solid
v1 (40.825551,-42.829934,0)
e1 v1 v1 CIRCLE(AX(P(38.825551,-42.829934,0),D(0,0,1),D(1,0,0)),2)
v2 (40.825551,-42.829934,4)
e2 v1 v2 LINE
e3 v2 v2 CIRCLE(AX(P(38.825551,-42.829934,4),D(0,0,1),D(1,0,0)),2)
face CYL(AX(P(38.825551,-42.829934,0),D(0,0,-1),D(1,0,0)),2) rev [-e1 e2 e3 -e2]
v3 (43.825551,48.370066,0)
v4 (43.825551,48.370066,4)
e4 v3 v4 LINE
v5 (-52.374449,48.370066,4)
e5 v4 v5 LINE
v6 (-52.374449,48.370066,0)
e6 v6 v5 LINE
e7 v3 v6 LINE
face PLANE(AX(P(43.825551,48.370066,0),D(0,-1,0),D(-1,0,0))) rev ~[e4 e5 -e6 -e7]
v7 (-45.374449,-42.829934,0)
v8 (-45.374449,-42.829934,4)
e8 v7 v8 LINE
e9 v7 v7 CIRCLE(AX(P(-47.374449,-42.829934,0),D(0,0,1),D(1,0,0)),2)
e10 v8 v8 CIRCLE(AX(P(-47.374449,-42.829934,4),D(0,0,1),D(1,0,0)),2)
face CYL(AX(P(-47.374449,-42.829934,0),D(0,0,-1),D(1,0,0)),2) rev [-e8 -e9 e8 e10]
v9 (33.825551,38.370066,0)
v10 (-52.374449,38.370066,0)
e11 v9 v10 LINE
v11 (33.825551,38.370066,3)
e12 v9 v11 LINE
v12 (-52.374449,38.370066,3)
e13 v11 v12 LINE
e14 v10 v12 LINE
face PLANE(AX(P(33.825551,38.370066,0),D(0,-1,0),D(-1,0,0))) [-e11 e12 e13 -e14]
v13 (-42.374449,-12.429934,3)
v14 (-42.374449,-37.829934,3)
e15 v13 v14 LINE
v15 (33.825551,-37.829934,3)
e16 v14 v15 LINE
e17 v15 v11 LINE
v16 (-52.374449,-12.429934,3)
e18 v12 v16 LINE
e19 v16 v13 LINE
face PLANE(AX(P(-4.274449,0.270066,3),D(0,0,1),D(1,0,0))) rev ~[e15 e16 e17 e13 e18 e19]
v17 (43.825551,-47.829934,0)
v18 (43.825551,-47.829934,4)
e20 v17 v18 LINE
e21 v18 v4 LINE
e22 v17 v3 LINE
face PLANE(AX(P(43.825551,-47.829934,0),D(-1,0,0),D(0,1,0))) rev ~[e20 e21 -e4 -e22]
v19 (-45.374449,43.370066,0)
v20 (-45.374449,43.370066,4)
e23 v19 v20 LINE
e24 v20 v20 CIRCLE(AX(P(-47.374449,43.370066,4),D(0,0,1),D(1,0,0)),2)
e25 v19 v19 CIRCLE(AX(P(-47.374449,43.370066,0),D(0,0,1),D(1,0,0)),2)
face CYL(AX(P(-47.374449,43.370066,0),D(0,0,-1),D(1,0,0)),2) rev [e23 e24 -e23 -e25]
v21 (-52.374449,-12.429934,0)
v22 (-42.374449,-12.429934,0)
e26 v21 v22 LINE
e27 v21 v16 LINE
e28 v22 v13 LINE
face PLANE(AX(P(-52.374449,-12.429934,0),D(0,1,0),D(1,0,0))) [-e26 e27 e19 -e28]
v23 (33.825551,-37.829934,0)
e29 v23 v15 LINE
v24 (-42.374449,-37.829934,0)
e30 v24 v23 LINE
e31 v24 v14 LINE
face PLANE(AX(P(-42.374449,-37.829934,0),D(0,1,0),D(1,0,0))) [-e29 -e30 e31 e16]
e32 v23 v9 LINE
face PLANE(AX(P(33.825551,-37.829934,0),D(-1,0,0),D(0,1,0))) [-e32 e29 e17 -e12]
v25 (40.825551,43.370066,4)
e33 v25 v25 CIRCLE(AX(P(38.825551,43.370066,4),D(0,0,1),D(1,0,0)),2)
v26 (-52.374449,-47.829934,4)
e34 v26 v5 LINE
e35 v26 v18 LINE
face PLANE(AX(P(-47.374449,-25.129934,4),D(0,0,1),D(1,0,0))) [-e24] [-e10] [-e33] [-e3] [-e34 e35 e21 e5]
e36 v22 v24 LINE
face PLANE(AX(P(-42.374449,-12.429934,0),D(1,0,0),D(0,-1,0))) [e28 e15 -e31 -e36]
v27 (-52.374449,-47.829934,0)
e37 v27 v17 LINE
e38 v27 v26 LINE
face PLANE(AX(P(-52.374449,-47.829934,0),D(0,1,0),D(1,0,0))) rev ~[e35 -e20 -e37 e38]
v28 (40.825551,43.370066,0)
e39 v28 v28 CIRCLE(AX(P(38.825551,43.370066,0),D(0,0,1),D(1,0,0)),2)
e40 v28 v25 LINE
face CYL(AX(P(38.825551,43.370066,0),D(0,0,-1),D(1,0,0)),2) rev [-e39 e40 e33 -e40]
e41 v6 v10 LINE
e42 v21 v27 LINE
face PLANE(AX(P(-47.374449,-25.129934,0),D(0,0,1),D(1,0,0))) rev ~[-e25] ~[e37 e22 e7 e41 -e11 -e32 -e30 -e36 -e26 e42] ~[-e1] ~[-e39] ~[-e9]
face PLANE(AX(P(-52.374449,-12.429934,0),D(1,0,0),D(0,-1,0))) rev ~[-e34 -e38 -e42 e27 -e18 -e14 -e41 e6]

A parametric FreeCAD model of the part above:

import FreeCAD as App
import Part
import Sketcher
from FreeCAD import Vector
Q = App.Units.Quantity


def add_polygon(sketch, points):
    """Adds a closed chain of lines whose ends are joined by coincident constraints."""
    first, n = sketch.GeometryCount, len(points)
    for a, b in zip(points, points[1:] + points[:1]):
        sketch.addGeometry(Part.LineSegment(App.Vector(*a, 0), App.Vector(*b, 0)), False)
    for i in range(n):
        sketch.addConstraint(Sketcher.Constraint("Coincident", first + i, 2, first + (i + 1) % n, 1))

doc = App.newDocument("Part")
body = doc.addObject("PartDesign::Body", "Body")

# Sketch on XY plane
sketch1 = doc.addObject("Sketcher::SketchObject", "Sketch")
body.addObject(sketch1)
sketch1.AttachmentSupport = (doc.XY_Plane, [""])
sketch1.MapMode = "FlatFace"
add_polygon(sketch1, [(43.8, 48.4), (-52.4, 48.4), (-52.4, -12.4), (-42.4, -12.4), (-42.4, 38.4), (33.8, 38.4), (33.8, -37.8), (-52.4, -37.8), (-52.4, -47.8), (43.8, -47.8)])  # lines 0-9
sketch1.addGeometry(Part.Circle(Vector(-47.4, -42.8, 0), Vector(0, 0, 1), 2), False)  # 10
sketch1.addGeometry(Part.Circle(Vector(38.8, -42.8, 0), Vector(0, 0, 1), 2), False)  # 11
sketch1.addGeometry(Part.Circle(Vector(-47.4, 43.4, 0), Vector(0, 0, 1), 2), False)  # 12
sketch1.addGeometry(Part.Circle(Vector(38.8, 43.4, 0), Vector(0, 0, 1), 2), False)  # 13
sketch1.addConstraint([
    Sketcher.Constraint("Horizontal", 0),
    Sketcher.Constraint("Vertical", 1),
    Sketcher.Constraint("Horizontal", 2),
    Sketcher.Constraint("Vertical", 3),
    Sketcher.Constraint("Horizontal", 4),
    Sketcher.Constraint("Vertical", 5),
    Sketcher.Constraint("Horizontal", 6),
    Sketcher.Constraint("Vertical", 7),
    Sketcher.Constraint("Horizontal", 8),
    Sketcher.Constraint("Vertical", 9),
    Sketcher.Constraint("Equal", 10, 11),
    Sketcher.Constraint("Equal", 11, 12),
    Sketcher.Constraint("Equal", 12, 13),
    Sketcher.Constraint("Horizontal", 10, 3, 11, 3),
    Sketcher.Constraint("Horizontal", 12, 3, 13, 3),
    Sketcher.Constraint("Vertical", 10, 3, 12, 3),
    Sketcher.Constraint("Vertical", 11, 3, 13, 3),
    Sketcher.Constraint("Vertical", 1, 2, 6, 2),
    Sketcher.Constraint("Equal", 4, 5),
    Sketcher.Constraint("Equal", 2, 7),
    Sketcher.Constraint("Equal", 8, 9),
    Sketcher.Constraint("Diameter", 10, Q("4 mm")),
    Sketcher.Constraint("DistanceX", 2, 1, 2, 2, Q("10 mm")),
    Sketcher.Constraint("DistanceX", 0, 2, 0, 1, Q("96.2 mm")),
    Sketcher.Constraint("DistanceX", 4, 1, 4, 2, Q("76.2 mm")),
    Sketcher.Constraint("DistanceY", 1, 2, 1, 1, Q("60.8 mm")),
    Sketcher.Constraint("DistanceX", 0, 2, 12, 3, Q("5 mm")),
    Sketcher.Constraint("DistanceY", 12, 3, 0, 2, Q("5 mm")),
    Sketcher.Constraint("DistanceX", 4, 2, 13, 3, Q("5 mm")),
    Sketcher.Constraint("DistanceY", 11, 3, 5, 2, Q("5 mm")),
    Sketcher.Constraint("DistanceX", 10, 3, -1, 1, Q("47.374449 mm")),
    Sketcher.Constraint("DistanceY", 10, 3, -1, 1, Q("42.829934 mm")),
])
pad1 = doc.addObject("PartDesign::Pad", "Pad")
body.addObject(pad1)
pad1.Profile = sketch1
pad1.Length = 4

# Sketch on XY plane
sketch2 = doc.addObject("Sketcher::SketchObject", "Sketch001")
body.addObject(sketch2)
sketch2.AttachmentSupport = (doc.XY_Plane, [""])
sketch2.MapMode = "FlatFace"
add_polygon(sketch2, [(-52, -12), (-52, -38), (34, -38), (34, 38), (-42, 38), (-42, -12)])  # lines 0-5
sketch2.addConstraint([
    Sketcher.Constraint("Vertical", 0),
    Sketcher.Constraint("Horizontal", 1),
    Sketcher.Constraint("Vertical", 2),
    Sketcher.Constraint("Horizontal", 3),
    Sketcher.Constraint("Vertical", 4),
    Sketcher.Constraint("Horizontal", 5),
    Sketcher.Constraint("Equal", 3, 2),
    Sketcher.Constraint("DistanceX", 5, 2, 5, 1, Q("10 mm")),
    Sketcher.Constraint("DistanceX", 1, 1, 1, 2, Q("86.2 mm")),
    Sketcher.Constraint("DistanceY", 0, 2, 0, 1, Q("25.4 mm")),
    Sketcher.Constraint("DistanceX", 0, 2, -1, 1, Q("52.374449 mm")),
    Sketcher.Constraint("DistanceY", 0, 2, -1, 1, Q("37.829934 mm")),
])
pad2 = doc.addObject("PartDesign::Pad", "Pad001")
body.addObject(pad2)
pad2.Profile = sketch2
pad2.Length = 4

# Sketch on XY plane
sketch3 = doc.addObject("Sketcher::SketchObject", "Sketch002")
body.addObject(sketch3)
sketch3.AttachmentSupport = (doc.XY_Plane, [""])
sketch3.MapMode = "FlatFace"
add_polygon(sketch3, [(-42, -38), (34, -38), (34, 38), (-52, 38), (-52, -12), (-42, -12)])  # lines 0-5
sketch3.addConstraint([
    Sketcher.Constraint("Horizontal", 0),
    Sketcher.Constraint("Vertical", 1),
    Sketcher.Constraint("Horizontal", 2),
    Sketcher.Constraint("Vertical", 3),
    Sketcher.Constraint("Horizontal", 4),
    Sketcher.Constraint("Vertical", 5),
    Sketcher.Constraint("Equal", 0, 1),
    Sketcher.Constraint("DistanceX", 4, 1, 4, 2, Q("10 mm")),
    Sketcher.Constraint("DistanceX", 0, 1, 0, 2, Q("76.2 mm")),
    Sketcher.Constraint("DistanceY", 3, 2, 3, 1, Q("50.8 mm")),
    Sketcher.Constraint("DistanceX", -1, 1, 0, 2, Q("33.825551 mm")),
    Sketcher.Constraint("DistanceY", 0, 2, -1, 1, Q("37.829934 mm")),
])
pocket1 = doc.addObject("PartDesign::Pocket", "Pocket")
body.addObject(pocket1)
pocket1.Profile = sketch3
pocket1.Length = 3
pocket1.Reversed = True

doc.recompute()
